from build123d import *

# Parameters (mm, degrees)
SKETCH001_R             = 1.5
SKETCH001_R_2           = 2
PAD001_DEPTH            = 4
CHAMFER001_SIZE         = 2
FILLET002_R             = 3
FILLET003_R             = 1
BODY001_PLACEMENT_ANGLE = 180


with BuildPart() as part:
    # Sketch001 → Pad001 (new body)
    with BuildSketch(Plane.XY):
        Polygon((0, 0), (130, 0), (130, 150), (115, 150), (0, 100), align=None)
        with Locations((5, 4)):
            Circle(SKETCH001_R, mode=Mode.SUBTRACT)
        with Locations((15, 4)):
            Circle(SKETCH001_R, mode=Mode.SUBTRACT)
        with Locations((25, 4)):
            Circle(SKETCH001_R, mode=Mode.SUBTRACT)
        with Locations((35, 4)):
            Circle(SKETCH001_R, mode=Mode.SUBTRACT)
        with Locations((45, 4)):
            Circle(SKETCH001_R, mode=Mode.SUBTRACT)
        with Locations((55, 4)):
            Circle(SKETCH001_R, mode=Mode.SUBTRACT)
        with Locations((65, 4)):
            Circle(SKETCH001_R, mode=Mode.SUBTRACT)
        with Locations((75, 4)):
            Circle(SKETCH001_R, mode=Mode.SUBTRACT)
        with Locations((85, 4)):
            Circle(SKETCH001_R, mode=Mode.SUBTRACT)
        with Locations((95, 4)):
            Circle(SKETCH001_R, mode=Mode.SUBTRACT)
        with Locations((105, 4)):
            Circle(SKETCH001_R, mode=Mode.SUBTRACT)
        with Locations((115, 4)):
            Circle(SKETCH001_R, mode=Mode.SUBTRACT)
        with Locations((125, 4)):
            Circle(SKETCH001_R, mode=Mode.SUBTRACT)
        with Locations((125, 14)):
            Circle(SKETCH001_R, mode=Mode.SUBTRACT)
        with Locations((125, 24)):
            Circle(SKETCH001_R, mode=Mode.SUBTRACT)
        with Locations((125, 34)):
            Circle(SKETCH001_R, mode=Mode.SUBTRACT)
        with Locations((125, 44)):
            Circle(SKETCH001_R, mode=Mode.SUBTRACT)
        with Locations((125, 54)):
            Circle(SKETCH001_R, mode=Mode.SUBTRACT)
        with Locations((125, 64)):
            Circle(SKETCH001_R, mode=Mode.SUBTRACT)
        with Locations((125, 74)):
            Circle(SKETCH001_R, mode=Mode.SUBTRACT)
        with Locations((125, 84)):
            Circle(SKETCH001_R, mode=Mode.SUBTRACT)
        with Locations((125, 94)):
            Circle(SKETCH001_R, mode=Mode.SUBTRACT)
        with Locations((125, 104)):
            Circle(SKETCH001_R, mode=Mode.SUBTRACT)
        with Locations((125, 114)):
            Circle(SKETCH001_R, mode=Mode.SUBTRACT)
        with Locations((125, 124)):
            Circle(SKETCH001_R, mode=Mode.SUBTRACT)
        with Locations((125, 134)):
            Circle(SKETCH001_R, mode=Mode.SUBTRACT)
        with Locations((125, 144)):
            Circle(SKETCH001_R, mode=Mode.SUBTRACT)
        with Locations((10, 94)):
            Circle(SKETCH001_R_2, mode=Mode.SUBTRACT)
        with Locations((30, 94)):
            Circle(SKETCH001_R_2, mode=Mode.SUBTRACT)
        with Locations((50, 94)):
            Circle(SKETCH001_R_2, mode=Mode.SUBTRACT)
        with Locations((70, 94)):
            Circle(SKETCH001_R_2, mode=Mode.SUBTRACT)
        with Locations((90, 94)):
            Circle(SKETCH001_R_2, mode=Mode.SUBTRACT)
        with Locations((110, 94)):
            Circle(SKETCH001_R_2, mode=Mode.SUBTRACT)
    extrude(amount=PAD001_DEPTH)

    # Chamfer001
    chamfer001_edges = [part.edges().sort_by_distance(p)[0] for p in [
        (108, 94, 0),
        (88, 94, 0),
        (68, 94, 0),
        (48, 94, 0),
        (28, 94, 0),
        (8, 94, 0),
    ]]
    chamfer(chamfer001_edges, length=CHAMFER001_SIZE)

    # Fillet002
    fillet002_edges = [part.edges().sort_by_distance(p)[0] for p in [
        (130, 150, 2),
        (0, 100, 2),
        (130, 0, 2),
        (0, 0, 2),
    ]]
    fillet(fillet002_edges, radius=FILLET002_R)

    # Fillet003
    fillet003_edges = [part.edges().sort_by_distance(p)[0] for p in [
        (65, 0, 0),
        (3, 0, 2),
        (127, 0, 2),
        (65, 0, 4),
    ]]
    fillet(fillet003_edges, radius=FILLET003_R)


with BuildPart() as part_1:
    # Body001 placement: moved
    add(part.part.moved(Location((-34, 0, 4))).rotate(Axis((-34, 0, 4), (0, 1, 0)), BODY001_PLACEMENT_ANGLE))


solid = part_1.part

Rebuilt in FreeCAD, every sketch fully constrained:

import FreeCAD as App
import Part
import Sketcher

V = App.Vector
Q = App.Units.Quantity


def edges_at(feature, points):
    """Names of the edges that pass closest to the given points."""
    edges = feature.Shape.Edges
    near = lambda p: min(range(len(edges)), key=lambda i: edges[i].distToShape(Part.Vertex(*p))[0])
    return sorted({f"Edge{near(p) + 1}" for p in points})

doc = App.newDocument("Part")
body = doc.addObject("PartDesign::Body", "Body")

# Sketch on XY plane
sketch1 = body.newObject("Sketcher::SketchObject", "Sketch")
sketch1.AttachmentSupport = (doc.getObject("XY_Plane"), [""])
sketch1.MapMode = "FlatFace"
sketch1.addGeometry(Part.LineSegment(V(0, 0, 0), V(130, 0, 0)), False)
sketch1.addGeometry(Part.LineSegment(V(130, 0, 0), V(130, 150, 0)), False)
sketch1.addGeometry(Part.LineSegment(V(130, 150, 0), V(115, 150, 0)), False)
sketch1.addGeometry(Part.LineSegment(V(115, 150, 0), V(0, 100, 0)), False)
sketch1.addGeometry(Part.LineSegment(V(0, 100, 0), V(0, 0, 0)), False)
sketch1.addGeometry(Part.Circle(V(5, 4, 0), V(0, 0, 1), 1.5), False)
sketch1.addGeometry(Part.Circle(V(15, 4, 0), V(0, 0, 1), 1.5), False)
sketch1.addGeometry(Part.Circle(V(25, 4, 0), V(0, 0, 1), 1.5), False)
sketch1.addGeometry(Part.Circle(V(35, 4, 0), V(0, 0, 1), 1.5), False)
sketch1.addGeometry(Part.Circle(V(45, 4, 0), V(0, 0, 1), 1.5), False)
sketch1.addGeometry(Part.Circle(V(55, 4, 0), V(0, 0, 1), 1.5), False)
sketch1.addGeometry(Part.Circle(V(65, 4, 0), V(0, 0, 1), 1.5), False)
sketch1.addGeometry(Part.Circle(V(75, 4, 0), V(0, 0, 1), 1.5), False)
sketch1.addGeometry(Part.Circle(V(85, 4, 0), V(0, 0, 1), 1.5), False)
sketch1.addGeometry(Part.Circle(V(95, 4, 0), V(0, 0, 1), 1.5), False)
sketch1.addGeometry(Part.Circle(V(105, 4, 0), V(0, 0, 1), 1.5), False)
sketch1.addGeometry(Part.Circle(V(115, 4, 0), V(0, 0, 1), 1.5), False)
sketch1.addGeometry(Part.Circle(V(125, 4, 0), V(0, 0, 1), 1.5), False)
sketch1.addGeometry(Part.Circle(V(125, 14, 0), V(0, 0, 1), 1.5), False)
sketch1.addGeometry(Part.Circle(V(125, 24, 0), V(0, 0, 1), 1.5), False)
sketch1.addGeometry(Part.Circle(V(125, 34, 0), V(0, 0, 1), 1.5), False)
sketch1.addGeometry(Part.Circle(V(125, 44, 0), V(0, 0, 1), 1.5), False)
sketch1.addGeometry(Part.Circle(V(125, 54, 0), V(0, 0, 1), 1.5), False)
sketch1.addGeometry(Part.Circle(V(125, 64, 0), V(0, 0, 1), 1.5), False)
sketch1.addGeometry(Part.Circle(V(10, 94, 0), V(0, 0, 1), 2), False)
sketch1.addGeometry(Part.Circle(V(30, 94, 0), V(0, 0, 1), 2), False)
sketch1.addGeometry(Part.Circle(V(50, 94, 0), V(0, 0, 1), 2), False)
sketch1.addGeometry(Part.Circle(V(70, 94, 0), V(0, 0, 1), 2), False)
sketch1.addGeometry(Part.Circle(V(90, 94, 0), V(0, 0, 1), 2), False)
sketch1.addGeometry(Part.Circle(V(125, 74, 0), V(0, 0, 1), 1.5), False)
sketch1.addGeometry(Part.Circle(V(125, 84, 0), V(0, 0, 1), 1.5), False)
sketch1.addGeometry(Part.Circle(V(110, 94, 0), V(0, 0, 1), 2), False)
sketch1.addGeometry(Part.Circle(V(125, 94, 0), V(0, 0, 1), 1.5), False)
sketch1.addGeometry(Part.Circle(V(125, 104, 0), V(0, 0, 1), 1.5), False)
sketch1.addGeometry(Part.Circle(V(125, 114, 0), V(0, 0, 1), 1.5), False)
sketch1.addGeometry(Part.Circle(V(125, 124, 0), V(0, 0, 1), 1.5), False)
sketch1.addGeometry(Part.Circle(V(125, 134, 0), V(0, 0, 1), 1.5), False)
sketch1.addGeometry(Part.Circle(V(125, 144, 0), V(0, 0, 1), 1.5), False)
sketch1.addConstraint(Sketcher.Constraint("Coincident", 0, 2, 1, 1))
sketch1.addConstraint(Sketcher.Constraint("Coincident", 1, 2, 2, 1))
sketch1.addConstraint(Sketcher.Constraint("Coincident", 2, 2, 3, 1))
sketch1.addConstraint(Sketcher.Constraint("Coincident", 3, 2, 4, 1))
sketch1.addConstraint(Sketcher.Constraint("Coincident", 4, 2, 0, 1))
sketch1.addConstraint(Sketcher.Constraint("Horizontal", 0))
sketch1.addConstraint(Sketcher.Constraint("Vertical", 1))
sketch1.addConstraint(Sketcher.Constraint("Horizontal", 2))
sketch1.addConstraint(Sketcher.Constraint("Vertical", 4))
sketch1.addConstraint(Sketcher.Constraint("Coincident", 4, 2, -1, 1))
sketch1.addConstraint(Sketcher.Constraint("Equal", 5, 6))
sketch1.addConstraint(Sketcher.Constraint("Equal", 6, 7))
sketch1.addConstraint(Sketcher.Constraint("Equal", 7, 8))
sketch1.addConstraint(Sketcher.Constraint("Equal", 8, 9))
sketch1.addConstraint(Sketcher.Constraint("Equal", 9, 10))
sketch1.addConstraint(Sketcher.Constraint("Equal", 10, 11))
sketch1.addConstraint(Sketcher.Constraint("Equal", 11, 12))
sketch1.addConstraint(Sketcher.Constraint("Equal", 12, 13))
sketch1.addConstraint(Sketcher.Constraint("Equal", 13, 14))
sketch1.addConstraint(Sketcher.Constraint("Equal", 14, 15))
sketch1.addConstraint(Sketcher.Constraint("Equal", 15, 16))
sketch1.addConstraint(Sketcher.Constraint("Equal", 16, 17))
sketch1.addConstraint(Sketcher.Constraint("Equal", 17, 18))
sketch1.addConstraint(Sketcher.Constraint("Equal", 18, 19))
sketch1.addConstraint(Sketcher.Constraint("Equal", 19, 20))
sketch1.addConstraint(Sketcher.Constraint("Equal", 20, 21))
sketch1.addConstraint(Sketcher.Constraint("Equal", 21, 22))
sketch1.addConstraint(Sketcher.Constraint("Equal", 22, 23))
sketch1.addConstraint(Sketcher.Constraint("Equal", 24, 25))
sketch1.addConstraint(Sketcher.Constraint("Equal", 25, 26))
sketch1.addConstraint(Sketcher.Constraint("Equal", 26, 27))
sketch1.addConstraint(Sketcher.Constraint("Equal", 27, 28))
sketch1.addConstraint(Sketcher.Constraint("Equal", 23, 29))
sketch1.addConstraint(Sketcher.Constraint("Equal", 29, 30))
sketch1.addConstraint(Sketcher.Constraint("Equal", 28, 31))
sketch1.addConstraint(Sketcher.Constraint("Equal", 30, 32))
sketch1.addConstraint(Sketcher.Constraint("Equal", 32, 33))
sketch1.addConstraint(Sketcher.Constraint("Equal", 33, 34))
sketch1.addConstraint(Sketcher.Constraint("Equal", 34, 35))
sketch1.addConstraint(Sketcher.Constraint("Equal", 35, 36))
sketch1.addConstraint(Sketcher.Constraint("Equal", 36, 37))
sketch1.addConstraint(Sketcher.Constraint("Horizontal", 5, 3, 6, 3))
sketch1.addConstraint(Sketcher.Constraint("Horizontal", 6, 3, 7, 3))
sketch1.addConstraint(Sketcher.Constraint("Horizontal", 7, 3, 8, 3))
sketch1.addConstraint(Sketcher.Constraint("Horizontal", 8, 3, 9, 3))
sketch1.addConstraint(Sketcher.Constraint("Horizontal", 9, 3, 10, 3))
sketch1.addConstraint(Sketcher.Constraint("Horizontal", 10, 3, 11, 3))
sketch1.addConstraint(Sketcher.Constraint("Horizontal", 11, 3, 12, 3))
sketch1.addConstraint(Sketcher.Constraint("Horizontal", 12, 3, 13, 3))
sketch1.addConstraint(Sketcher.Constraint("Horizontal", 13, 3, 14, 3))
sketch1.addConstraint(Sketcher.Constraint("Horizontal", 14, 3, 15, 3))
sketch1.addConstraint(Sketcher.Constraint("Horizontal", 15, 3, 16, 3))
sketch1.addConstraint(Sketcher.Constraint("Horizontal", 16, 3, 17, 3))
sketch1.addConstraint(Sketcher.Constraint("Horizontal", 24, 3, 25, 3))
sketch1.addConstraint(Sketcher.Constraint("Horizontal", 25, 3, 26, 3))
sketch1.addConstraint(Sketcher.Constraint("Horizontal", 26, 3, 27, 3))
sketch1.addConstraint(Sketcher.Constraint("Horizontal", 27, 3, 28, 3))
sketch1.addConstraint(Sketcher.Constraint("Horizontal", 28, 3, 31, 3))
sketch1.addConstraint(Sketcher.Constraint("Horizontal", 31, 3, 32, 3))
sketch1.addConstraint(Sketcher.Constraint("Vertical", 17, 3, 18, 3))
sketch1.addConstraint(Sketcher.Constraint("Vertical", 18, 3, 19, 3))
sketch1.addConstraint(Sketcher.Constraint("Vertical", 19, 3, 20, 3))
sketch1.addConstraint(Sketcher.Constraint("Vertical", 20, 3, 21, 3))
sketch1.addConstraint(Sketcher.Constraint("Vertical", 21, 3, 22, 3))
sketch1.addConstraint(Sketcher.Constraint("Vertical", 22, 3, 23, 3))
sketch1.addConstraint(Sketcher.Constraint("Vertical", 23, 3, 29, 3))
sketch1.addConstraint(Sketcher.Constraint("Vertical", 29, 3, 30, 3))
sketch1.addConstraint(Sketcher.Constraint("Vertical", 30, 3, 32, 3))
sketch1.addConstraint(Sketcher.Constraint("Vertical", 32, 3, 33, 3))
sketch1.addConstraint(Sketcher.Constraint("Vertical", 33, 3, 34, 3))
sketch1.addConstraint(Sketcher.Constraint("Vertical", 34, 3, 35, 3))
sketch1.addConstraint(Sketcher.Constraint("Vertical", 35, 3, 36, 3))
sketch1.addConstraint(Sketcher.Constraint("Vertical", 36, 3, 37, 3))
sketch1.addConstraint(Sketcher.Constraint("Vertical", 16, 3, 2, 2))
sketch1.addConstraint(Sketcher.Constraint("Diameter", 5, Q("3 mm")))
sketch1.addConstraint(Sketcher.Constraint("Diameter", 24, Q("4 mm")))
sketch1.addConstraint(Sketcher.Constraint("DistanceX", 0, 1, 0, 2, Q("130 mm")))
sketch1.addConstraint(Sketcher.Constraint("DistanceX", 2, 2, 2, 1, Q("15 mm")))
sketch1.addConstraint(Sketcher.Constraint("DistanceY", 1, 1, 1, 2, Q("150 mm")))
sketch1.addConstraint(Sketcher.Constraint("DistanceY", 4, 2, 4, 1, Q("100 mm")))
sketch1.addConstraint(Sketcher.Constraint("DistanceX", -1, 1, 5, 3, Q("5 mm")))
sketch1.addConstraint(Sketcher.Constraint("DistanceY", -1, 1, 5, 3, Q("4 mm")))
sketch1.addConstraint(Sketcher.Constraint("DistanceX", -1, 1, 6, 3, Q("15 mm")))
sketch1.addConstraint(Sketcher.Constraint("DistanceX", -1, 1, 7, 3, Q("25 mm")))
sketch1.addConstraint(Sketcher.Constraint("DistanceX", -1, 1, 8, 3, Q("35 mm")))
sketch1.addConstraint(Sketcher.Constraint("DistanceX", -1, 1, 9, 3, Q("45 mm")))
sketch1.addConstraint(Sketcher.Constraint("DistanceX", -1, 1, 10, 3, Q("55 mm")))
sketch1.addConstraint(Sketcher.Constraint("DistanceX", -1, 1, 11, 3, Q("65 mm")))
sketch1.addConstraint(Sketcher.Constraint("DistanceX", -1, 1, 12, 3, Q("75 mm")))
sketch1.addConstraint(Sketcher.Constraint("DistanceX", -1, 1, 13, 3, Q("85 mm")))
sketch1.addConstraint(Sketcher.Constraint("DistanceX", -1, 1, 14, 3, Q("95 mm")))
sketch1.addConstraint(Sketcher.Constraint("DistanceX", -1, 1, 15, 3, Q("105 mm")))
sketch1.addConstraint(Sketcher.Constraint("DistanceX", -1, 1, 17, 3, Q("125 mm")))
sketch1.addConstraint(Sketcher.Constraint("DistanceY", -1, 1, 18, 3, Q("14 mm")))
sketch1.addConstraint(Sketcher.Constraint("DistanceY", -1, 1, 19, 3, Q("24 mm")))
sketch1.addConstraint(Sketcher.Constraint("DistanceY", -1, 1, 20, 3, Q("34 mm")))
sketch1.addConstraint(Sketcher.Constraint("DistanceY", -1, 1, 21, 3, Q("44 mm")))
sketch1.addConstraint(Sketcher.Constraint("DistanceY", -1, 1, 22, 3, Q("54 mm")))
sketch1.addConstraint(Sketcher.Constraint("DistanceY", -1, 1, 23, 3, Q("64 mm")))
sketch1.addConstraint(Sketcher.Constraint("DistanceX", -1, 1, 24, 3, Q("10 mm")))
sketch1.addConstraint(Sketcher.Constraint("DistanceY", -1, 1, 24, 3, Q("94 mm")))
sketch1.addConstraint(Sketcher.Constraint("DistanceX", -1, 1, 25, 3, Q("30 mm")))
sketch1.addConstraint(Sketcher.Constraint("DistanceX", -1, 1, 26, 3, Q("50 mm")))
sketch1.addConstraint(Sketcher.Constraint("DistanceX", -1, 1, 27, 3, Q("70 mm")))
sketch1.addConstraint(Sketcher.Constraint("DistanceX", -1, 1, 28, 3, Q("90 mm")))
sketch1.addConstraint(Sketcher.Constraint("DistanceY", -1, 1, 29, 3, Q("74 mm")))
sketch1.addConstraint(Sketcher.Constraint("DistanceY", -1, 1, 30, 3, Q("84 mm")))
sketch1.addConstraint(Sketcher.Constraint("DistanceX", -1, 1, 31, 3, Q("110 mm")))
sketch1.addConstraint(Sketcher.Constraint("DistanceY", -1, 1, 33, 3, Q("104 mm")))
sketch1.addConstraint(Sketcher.Constraint("DistanceY", -1, 1, 34, 3, Q("114 mm")))
sketch1.addConstraint(Sketcher.Constraint("DistanceY", -1, 1, 35, 3, Q("124 mm")))
sketch1.addConstraint(Sketcher.Constraint("DistanceY", -1, 1, 36, 3, Q("134 mm")))
sketch1.addConstraint(Sketcher.Constraint("DistanceY", -1, 1, 37, 3, Q("144 mm")))
pad1 = body.newObject("PartDesign::Pad", "Pad")
pad1.Profile = sketch1
pad1.Length = 4
doc.recompute()

chamfer = body.newObject("PartDesign::Chamfer", "Chamfer")
chamfer.Base = (pad1, edges_at(pad1, [
    (108, 94, 0),
    (88, 94, 0),
    (68, 94, 0),
    (48, 94, 0),
    (28, 94, 0),
    (8, 94, 0),
]))
chamfer.Size = 2
doc.recompute()

fillet = body.newObject("PartDesign::Fillet", "Fillet")
fillet.Base = (chamfer, edges_at(chamfer, [
    (130, 150, 2),
    (0, 100, 2),
    (130, 0, 2),
    (0, 0, 2),
]))
fillet.Radius = 3
doc.recompute()

fillet2 = body.newObject("PartDesign::Fillet", "Fillet001")
fillet2.Base = (fillet, edges_at(fillet, [
    (65, 0, 0),
    (3, 0, 2),
    (127, 0, 2),
    (65, 0, 4),
]))
fillet2.Radius = 1
body2 = doc.addObject("PartDesign::Body", "Body001")
doc.recompute()

body.Placement = App.Placement(V(-34, 0, 4), App.Rotation(V(0, 1, 0), 180))
boolean = body2.newObject("PartDesign::Boolean", "Boolean")
boolean.Type = "Fuse"
boolean.addObjects([body])

doc.recompute()
